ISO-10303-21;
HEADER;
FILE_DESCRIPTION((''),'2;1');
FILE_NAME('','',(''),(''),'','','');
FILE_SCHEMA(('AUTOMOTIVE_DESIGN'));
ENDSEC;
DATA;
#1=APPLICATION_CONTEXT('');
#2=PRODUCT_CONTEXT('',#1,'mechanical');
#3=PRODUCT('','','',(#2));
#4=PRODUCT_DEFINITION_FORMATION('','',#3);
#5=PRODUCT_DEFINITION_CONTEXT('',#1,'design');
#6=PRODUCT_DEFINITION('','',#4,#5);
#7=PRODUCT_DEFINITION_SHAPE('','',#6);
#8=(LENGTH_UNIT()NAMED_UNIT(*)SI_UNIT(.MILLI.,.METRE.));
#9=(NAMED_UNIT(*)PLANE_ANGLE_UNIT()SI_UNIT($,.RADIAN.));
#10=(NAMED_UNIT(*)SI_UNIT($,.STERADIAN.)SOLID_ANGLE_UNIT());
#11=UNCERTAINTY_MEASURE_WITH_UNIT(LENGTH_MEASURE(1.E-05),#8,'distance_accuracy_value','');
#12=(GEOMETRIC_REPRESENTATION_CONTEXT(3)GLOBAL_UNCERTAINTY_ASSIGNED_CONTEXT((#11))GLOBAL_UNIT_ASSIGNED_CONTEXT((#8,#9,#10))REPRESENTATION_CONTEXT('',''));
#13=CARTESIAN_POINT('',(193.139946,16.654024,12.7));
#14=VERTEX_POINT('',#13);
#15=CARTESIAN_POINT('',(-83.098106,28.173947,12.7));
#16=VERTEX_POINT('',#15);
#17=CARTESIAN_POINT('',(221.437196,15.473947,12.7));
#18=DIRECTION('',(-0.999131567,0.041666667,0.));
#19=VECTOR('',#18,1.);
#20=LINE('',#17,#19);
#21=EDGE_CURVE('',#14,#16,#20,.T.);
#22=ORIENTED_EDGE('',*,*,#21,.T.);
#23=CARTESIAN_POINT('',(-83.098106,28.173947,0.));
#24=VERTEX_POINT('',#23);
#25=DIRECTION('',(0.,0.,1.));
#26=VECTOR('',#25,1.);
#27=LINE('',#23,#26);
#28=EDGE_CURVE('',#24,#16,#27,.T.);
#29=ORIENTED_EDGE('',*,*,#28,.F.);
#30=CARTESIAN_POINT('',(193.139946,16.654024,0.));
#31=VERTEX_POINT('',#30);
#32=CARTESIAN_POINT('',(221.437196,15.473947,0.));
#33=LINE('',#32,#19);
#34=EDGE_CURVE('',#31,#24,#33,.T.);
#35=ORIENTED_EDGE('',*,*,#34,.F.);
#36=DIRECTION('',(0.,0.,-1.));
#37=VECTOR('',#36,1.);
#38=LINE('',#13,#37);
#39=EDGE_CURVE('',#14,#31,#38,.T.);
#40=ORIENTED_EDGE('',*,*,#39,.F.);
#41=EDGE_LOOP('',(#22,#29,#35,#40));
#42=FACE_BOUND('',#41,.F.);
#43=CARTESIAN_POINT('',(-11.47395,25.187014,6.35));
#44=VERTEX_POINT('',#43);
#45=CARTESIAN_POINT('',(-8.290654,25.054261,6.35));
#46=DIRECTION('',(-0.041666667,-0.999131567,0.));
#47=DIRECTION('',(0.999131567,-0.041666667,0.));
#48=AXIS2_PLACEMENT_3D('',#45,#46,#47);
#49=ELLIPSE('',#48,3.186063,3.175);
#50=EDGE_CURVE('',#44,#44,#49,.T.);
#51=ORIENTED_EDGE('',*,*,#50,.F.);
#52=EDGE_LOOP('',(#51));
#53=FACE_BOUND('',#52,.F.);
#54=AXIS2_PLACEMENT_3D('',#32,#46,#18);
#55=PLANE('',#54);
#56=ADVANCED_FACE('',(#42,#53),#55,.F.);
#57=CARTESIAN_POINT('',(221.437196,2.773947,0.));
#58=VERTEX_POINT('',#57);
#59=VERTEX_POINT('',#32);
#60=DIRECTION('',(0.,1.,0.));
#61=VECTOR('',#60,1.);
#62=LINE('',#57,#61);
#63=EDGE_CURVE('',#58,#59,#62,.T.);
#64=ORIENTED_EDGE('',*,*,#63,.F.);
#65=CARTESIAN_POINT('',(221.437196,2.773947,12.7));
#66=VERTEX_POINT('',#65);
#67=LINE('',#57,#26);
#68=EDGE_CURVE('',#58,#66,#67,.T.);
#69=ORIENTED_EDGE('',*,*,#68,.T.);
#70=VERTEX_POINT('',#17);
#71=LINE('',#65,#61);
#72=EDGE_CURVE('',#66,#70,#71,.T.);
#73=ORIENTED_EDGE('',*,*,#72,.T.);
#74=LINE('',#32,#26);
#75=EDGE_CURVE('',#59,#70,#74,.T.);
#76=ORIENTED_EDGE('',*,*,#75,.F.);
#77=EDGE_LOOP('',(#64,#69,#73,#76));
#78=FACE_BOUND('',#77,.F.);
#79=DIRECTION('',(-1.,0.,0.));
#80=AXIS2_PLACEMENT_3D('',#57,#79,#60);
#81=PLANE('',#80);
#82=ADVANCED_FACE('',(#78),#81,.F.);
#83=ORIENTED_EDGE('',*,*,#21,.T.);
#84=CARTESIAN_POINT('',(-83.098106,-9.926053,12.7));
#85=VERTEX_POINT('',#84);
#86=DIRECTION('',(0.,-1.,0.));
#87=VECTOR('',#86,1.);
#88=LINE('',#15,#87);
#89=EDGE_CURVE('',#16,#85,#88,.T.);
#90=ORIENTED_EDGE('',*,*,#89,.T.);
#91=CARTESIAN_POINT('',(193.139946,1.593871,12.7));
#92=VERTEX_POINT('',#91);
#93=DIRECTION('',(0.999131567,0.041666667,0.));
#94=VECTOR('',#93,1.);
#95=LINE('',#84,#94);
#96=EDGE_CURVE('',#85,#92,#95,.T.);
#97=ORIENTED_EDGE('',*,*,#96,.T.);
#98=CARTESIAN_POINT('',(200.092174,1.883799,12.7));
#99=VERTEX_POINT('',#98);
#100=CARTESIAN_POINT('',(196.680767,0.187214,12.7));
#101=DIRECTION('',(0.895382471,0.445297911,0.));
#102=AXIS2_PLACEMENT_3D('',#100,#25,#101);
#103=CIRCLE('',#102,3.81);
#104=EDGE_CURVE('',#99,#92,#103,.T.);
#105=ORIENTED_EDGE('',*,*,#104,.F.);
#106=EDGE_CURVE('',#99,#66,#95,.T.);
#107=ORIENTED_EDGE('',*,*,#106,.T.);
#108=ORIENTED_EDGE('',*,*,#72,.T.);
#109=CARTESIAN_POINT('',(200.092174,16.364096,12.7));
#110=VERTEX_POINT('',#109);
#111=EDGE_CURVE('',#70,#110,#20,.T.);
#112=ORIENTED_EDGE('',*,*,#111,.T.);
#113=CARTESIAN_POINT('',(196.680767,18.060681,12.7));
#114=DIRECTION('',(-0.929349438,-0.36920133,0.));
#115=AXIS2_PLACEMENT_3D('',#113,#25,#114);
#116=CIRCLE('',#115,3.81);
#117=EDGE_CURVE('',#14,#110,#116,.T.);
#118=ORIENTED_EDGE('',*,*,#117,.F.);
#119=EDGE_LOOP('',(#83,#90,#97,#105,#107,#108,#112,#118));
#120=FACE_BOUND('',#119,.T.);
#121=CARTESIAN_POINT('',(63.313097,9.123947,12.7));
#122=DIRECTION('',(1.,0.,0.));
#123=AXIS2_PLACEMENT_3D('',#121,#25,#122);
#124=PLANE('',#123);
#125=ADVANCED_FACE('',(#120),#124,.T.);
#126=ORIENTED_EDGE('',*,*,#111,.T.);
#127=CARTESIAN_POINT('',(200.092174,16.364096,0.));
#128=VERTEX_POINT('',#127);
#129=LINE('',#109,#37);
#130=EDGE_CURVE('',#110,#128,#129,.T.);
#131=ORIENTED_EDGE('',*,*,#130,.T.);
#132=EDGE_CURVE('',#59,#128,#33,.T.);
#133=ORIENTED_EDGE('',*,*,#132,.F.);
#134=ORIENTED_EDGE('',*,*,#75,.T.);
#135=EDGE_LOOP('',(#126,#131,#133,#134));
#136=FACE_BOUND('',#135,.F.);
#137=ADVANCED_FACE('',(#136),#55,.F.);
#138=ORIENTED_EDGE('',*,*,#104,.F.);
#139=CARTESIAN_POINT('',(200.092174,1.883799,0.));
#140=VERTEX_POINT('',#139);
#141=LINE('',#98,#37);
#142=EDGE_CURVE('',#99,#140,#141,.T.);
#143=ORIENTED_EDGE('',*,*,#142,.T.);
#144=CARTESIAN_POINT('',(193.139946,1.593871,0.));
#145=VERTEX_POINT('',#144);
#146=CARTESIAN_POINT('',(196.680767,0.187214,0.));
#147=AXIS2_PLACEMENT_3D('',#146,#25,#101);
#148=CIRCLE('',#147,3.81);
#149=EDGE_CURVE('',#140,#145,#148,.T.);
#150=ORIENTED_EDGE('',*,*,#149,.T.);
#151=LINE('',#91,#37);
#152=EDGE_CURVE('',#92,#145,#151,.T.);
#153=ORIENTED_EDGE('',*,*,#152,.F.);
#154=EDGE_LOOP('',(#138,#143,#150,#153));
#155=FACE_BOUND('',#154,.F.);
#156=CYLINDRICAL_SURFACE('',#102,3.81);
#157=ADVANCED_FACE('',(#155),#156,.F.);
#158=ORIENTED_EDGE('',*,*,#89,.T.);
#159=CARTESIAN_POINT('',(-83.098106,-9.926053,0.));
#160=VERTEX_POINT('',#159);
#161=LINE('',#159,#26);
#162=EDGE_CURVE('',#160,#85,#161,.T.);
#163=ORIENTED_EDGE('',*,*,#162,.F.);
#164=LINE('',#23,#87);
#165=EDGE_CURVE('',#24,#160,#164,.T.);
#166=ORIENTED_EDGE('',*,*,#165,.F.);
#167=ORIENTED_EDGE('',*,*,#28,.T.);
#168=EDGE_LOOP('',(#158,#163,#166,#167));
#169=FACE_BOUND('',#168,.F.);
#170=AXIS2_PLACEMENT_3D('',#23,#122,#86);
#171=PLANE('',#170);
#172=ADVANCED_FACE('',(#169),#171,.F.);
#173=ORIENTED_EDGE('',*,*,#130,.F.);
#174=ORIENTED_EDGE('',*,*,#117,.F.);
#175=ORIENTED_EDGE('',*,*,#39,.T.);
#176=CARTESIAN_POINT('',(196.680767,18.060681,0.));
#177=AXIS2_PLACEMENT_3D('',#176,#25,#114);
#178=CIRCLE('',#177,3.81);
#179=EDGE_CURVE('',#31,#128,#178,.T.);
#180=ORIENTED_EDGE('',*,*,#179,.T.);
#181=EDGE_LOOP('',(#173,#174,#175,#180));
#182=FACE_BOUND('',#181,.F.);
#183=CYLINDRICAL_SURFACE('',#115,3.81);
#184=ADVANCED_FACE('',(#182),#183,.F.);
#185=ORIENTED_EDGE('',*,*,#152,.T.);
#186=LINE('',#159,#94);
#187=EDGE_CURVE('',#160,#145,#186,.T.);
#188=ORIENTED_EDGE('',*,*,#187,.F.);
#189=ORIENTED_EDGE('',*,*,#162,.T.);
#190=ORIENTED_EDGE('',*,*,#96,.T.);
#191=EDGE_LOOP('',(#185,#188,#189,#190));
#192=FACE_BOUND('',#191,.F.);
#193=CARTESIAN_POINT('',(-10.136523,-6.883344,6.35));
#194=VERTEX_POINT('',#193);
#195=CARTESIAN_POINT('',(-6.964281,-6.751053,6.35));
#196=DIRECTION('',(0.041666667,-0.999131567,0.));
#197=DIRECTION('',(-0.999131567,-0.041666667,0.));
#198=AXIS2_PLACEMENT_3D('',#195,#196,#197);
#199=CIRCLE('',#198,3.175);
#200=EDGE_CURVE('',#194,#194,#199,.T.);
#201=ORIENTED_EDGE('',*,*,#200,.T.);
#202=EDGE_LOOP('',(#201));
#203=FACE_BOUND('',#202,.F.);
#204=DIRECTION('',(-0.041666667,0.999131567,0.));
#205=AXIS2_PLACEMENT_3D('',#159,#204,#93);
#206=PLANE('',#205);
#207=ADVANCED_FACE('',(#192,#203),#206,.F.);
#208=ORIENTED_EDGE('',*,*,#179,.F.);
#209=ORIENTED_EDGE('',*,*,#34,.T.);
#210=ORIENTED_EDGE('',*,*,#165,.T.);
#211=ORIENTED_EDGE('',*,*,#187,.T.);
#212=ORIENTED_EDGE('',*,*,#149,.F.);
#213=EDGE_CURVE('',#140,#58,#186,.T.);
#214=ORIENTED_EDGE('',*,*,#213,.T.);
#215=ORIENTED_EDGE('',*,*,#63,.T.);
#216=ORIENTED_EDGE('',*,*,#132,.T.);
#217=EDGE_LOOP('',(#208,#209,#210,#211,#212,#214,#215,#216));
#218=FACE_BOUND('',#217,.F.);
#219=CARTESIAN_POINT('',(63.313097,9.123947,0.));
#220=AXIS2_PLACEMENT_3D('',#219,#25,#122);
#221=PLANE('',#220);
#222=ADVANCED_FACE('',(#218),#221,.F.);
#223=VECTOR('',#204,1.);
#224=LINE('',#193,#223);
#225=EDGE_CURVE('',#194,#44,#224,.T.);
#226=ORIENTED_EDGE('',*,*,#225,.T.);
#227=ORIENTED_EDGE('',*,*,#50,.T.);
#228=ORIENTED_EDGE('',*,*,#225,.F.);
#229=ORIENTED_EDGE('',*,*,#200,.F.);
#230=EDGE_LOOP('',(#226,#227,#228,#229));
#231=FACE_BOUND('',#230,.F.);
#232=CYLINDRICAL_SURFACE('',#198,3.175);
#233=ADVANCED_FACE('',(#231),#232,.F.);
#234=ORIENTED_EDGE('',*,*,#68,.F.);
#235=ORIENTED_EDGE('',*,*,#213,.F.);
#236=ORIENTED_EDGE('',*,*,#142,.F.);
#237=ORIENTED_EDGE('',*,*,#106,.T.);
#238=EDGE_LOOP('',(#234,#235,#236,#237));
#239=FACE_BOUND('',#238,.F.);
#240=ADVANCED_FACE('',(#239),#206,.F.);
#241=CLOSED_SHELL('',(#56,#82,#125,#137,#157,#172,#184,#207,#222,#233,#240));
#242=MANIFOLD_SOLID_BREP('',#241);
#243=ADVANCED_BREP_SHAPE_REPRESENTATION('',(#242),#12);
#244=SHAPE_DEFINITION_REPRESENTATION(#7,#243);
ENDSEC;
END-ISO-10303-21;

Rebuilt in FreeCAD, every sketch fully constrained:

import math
import FreeCAD as App
import Part
import Sketcher

V = App.Vector
Q = App.Units.Quantity


def add_polygon(sketch, points):
    """Adds a closed chain of lines whose ends are joined by coincident constraints."""
    first, n = sketch.GeometryCount, len(points)
    for a, b in zip(points, points[1:] + points[:1]):
        sketch.addGeometry(Part.LineSegment(App.Vector(*a, 0), App.Vector(*b, 0)), False)
    for i in range(n):
        sketch.addConstraint(Sketcher.Constraint("Coincident", first + i, 2, first + (i + 1) % n, 1))

doc = App.newDocument("Part")
body = doc.addObject("PartDesign::Body", "Body")

# Sketch on XY plane
sketch1 = body.newObject("Sketcher::SketchObject", "Sketch")
sketch1.AttachmentSupport = (doc.getObject("XY_Plane"), [""])
sketch1.MapMode = "FlatFace"
add_polygon(sketch1, [(221, 15), (-83, 28), (-83, -10), (221, 3)])  # lines 0-3
sketch1.addConstraint([
    Sketcher.Constraint("Vertical", 1),
    Sketcher.Constraint("Vertical", 3),
    Sketcher.Constraint("Equal", 0, 2),
    Sketcher.Constraint("Distance", 0, Q("12 in")),
    Sketcher.Constraint("DistanceY", 1, 2, 1, 1, Q("1.5 in")),
    Sketcher.Constraint("DistanceY", 3, 1, 3, 2, Q("0.5 in")),
    Sketcher.Constraint("DistanceX", -1, 1, 2, 2, Q("8.7179998 in")),
    Sketcher.Constraint("DistanceY", -1, 1, 0, 2, Q("28.173947 mm")),
])
pad1 = body.newObject("PartDesign::Pad", "Pad")
pad1.Profile = sketch1
pad1.Length = Q("0.5 in")

# Sketch on XY plane
sketch2 = body.newObject("Sketcher::SketchObject", "Sketch001")
sketch2.AttachmentSupport = (doc.getObject("XY_Plane"), [""])
sketch2.MapMode = "FlatFace"
sketch2.AttachmentOffset = App.Placement(V(0, 0, 0.5 * 25.4), App.Rotation())
sketch2.addGeometry([
    Part.LineSegment(V(200.1, 16.4, 0), V(193.1, 16.7, 0)),
    Part.ArcOfCircle(Part.Circle(V(196.7, 18.1, 0), V(0, 0, 1), 3.8), math.radians(-158), math.radians(-26)),
    Part.ArcOfCircle(Part.Circle(V(196.7, 0.2, 0), V(0, 0, 1), 3.8), math.radians(26), math.radians(158)),
    Part.LineSegment(V(193.1, 1.6, 0), V(200.1, 1.9, 0)),
], False)
sketch2.addConstraint([
    Sketcher.Constraint("Coincident", 0, 1, 1, 2),
    Sketcher.Constraint("Coincident", 1, 1, 0, 2),
    Sketcher.Constraint("Coincident", 2, 1, 3, 2),
    Sketcher.Constraint("Coincident", 3, 1, 2, 2),
    Sketcher.Constraint("Equal", 1, 2),
    Sketcher.Constraint("Vertical", 1, 3, 2, 3),
    Sketcher.Constraint("Vertical", 0, 1, 2, 1),
    Sketcher.Constraint("Vertical", 1, 1, 3, 1),
    Sketcher.Constraint("Radius", 1, Q("0.15 in")),
    Sketcher.Constraint("DistanceY", -1, 1, 2, 1, Q("1.883799 mm")),
    Sketcher.Constraint("Distance", 0, Q("6.958271 mm")),
    Sketcher.Constraint("DistanceY", -1, 1, 1, 3, Q("18.060681 mm")),
    Sketcher.Constraint("DistanceY", -1, 1, 3, 1, Q("1.593871 mm")),
    Sketcher.Constraint("DistanceX", -1, 1, 1, 3, Q("196.680767 mm")),
])
pocket1 = body.newObject("PartDesign::Pocket", "Pocket")
pocket1.Profile = sketch2
pocket1.Length = Q("1 in")

# Sketch on an angled plane
sketch3 = body.newObject("Sketcher::SketchObject", "Sketch002")
sketch3.Placement = App.Placement(V(0.268959, -6.449406, 0), App.Rotation(V(0.999131567, 0.041666667, 0), V(0, 0, 0.999999999), V(0.041666667, -0.999131567, 0), "ZXY"))
sketch3.addGeometry(Part.Circle(V(-7.2, 6.3, 0), V(0, 0, 1), 3.2), False)
sketch3.addConstraint([
    Sketcher.Constraint("Diameter", 0, Q("0.25 in")),
    Sketcher.Constraint("DistanceY", -1, 1, 0, 3, Q("0.25 in")),
    Sketcher.Constraint("DistanceX", 0, 3, -1, 1, Q("7.239526 mm")),
])
pocket2 = body.newObject("PartDesign::Pocket", "Pocket001")
pocket2.Profile = sketch3
pocket2.Length = Q("2 in")

doc.recompute()
